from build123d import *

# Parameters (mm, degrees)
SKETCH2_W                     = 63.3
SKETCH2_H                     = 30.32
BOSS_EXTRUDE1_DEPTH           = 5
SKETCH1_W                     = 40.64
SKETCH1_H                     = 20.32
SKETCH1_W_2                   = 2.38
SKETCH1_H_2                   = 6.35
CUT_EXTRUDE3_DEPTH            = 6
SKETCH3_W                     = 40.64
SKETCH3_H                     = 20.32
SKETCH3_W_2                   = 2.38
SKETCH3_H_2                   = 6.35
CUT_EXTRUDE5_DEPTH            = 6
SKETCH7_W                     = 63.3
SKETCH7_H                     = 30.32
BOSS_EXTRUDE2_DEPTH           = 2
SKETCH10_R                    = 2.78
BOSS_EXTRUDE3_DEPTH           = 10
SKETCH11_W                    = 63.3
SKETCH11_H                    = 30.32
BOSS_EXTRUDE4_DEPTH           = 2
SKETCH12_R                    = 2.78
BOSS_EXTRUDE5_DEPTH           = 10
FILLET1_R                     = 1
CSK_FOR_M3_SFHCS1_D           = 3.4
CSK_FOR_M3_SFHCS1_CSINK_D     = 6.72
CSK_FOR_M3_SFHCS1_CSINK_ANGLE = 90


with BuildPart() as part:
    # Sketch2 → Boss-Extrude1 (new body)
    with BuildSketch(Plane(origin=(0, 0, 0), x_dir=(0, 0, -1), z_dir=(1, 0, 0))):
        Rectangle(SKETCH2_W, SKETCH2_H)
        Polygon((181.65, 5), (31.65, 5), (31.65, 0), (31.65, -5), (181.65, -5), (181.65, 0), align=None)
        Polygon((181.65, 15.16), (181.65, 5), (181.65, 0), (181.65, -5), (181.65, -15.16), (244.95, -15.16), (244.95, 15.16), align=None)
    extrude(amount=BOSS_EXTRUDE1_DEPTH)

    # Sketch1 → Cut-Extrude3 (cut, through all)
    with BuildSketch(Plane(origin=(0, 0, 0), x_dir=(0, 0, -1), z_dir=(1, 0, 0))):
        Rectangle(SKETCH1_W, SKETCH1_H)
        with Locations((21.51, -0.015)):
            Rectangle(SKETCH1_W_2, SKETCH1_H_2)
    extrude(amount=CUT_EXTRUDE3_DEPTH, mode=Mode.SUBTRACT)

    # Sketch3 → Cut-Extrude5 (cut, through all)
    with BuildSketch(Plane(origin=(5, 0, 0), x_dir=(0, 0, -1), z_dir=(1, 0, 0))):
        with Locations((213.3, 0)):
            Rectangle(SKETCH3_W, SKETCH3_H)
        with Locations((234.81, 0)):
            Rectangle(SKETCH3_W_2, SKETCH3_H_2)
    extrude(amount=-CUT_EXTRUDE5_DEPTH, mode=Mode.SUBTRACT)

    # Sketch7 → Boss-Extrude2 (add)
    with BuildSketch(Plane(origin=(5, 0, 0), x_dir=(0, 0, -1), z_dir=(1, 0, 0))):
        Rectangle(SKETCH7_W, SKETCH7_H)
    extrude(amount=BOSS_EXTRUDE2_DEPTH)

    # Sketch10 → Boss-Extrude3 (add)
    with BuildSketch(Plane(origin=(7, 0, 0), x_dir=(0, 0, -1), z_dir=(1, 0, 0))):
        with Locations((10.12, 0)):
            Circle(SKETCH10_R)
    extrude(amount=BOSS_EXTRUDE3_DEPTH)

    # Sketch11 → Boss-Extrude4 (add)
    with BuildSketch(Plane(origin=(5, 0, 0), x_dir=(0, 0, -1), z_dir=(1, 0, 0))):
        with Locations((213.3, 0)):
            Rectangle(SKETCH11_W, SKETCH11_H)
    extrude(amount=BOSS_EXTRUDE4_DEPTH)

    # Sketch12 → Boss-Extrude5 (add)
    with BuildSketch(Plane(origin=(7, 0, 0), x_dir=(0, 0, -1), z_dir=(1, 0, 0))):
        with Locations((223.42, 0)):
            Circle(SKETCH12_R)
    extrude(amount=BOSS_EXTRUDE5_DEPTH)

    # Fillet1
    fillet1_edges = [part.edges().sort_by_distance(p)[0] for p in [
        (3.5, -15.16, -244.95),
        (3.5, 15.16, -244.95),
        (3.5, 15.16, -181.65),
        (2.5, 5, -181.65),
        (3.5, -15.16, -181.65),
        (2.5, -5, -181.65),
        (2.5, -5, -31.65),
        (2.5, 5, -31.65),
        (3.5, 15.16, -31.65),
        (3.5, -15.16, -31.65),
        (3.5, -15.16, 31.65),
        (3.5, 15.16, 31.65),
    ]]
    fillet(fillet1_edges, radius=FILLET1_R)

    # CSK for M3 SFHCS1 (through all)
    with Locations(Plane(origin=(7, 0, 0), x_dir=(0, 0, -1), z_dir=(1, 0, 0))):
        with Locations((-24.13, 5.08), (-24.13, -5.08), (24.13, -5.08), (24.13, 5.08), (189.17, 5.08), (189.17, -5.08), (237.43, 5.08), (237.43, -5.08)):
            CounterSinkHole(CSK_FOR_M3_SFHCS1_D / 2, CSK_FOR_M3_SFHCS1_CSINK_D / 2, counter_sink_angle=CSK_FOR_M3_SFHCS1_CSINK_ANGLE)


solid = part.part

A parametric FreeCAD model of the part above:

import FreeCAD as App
import Part
import Sketcher


def edges_at(feature, points):
    """Names of the edges that pass closest to the given points."""
    edges = feature.Shape.Edges
    near = lambda p: min(range(len(edges)), key=lambda i: edges[i].distToShape(Part.Vertex(*p))[0])
    return sorted({f"Edge{near(p) + 1}" for p in points})

doc = App.newDocument("Part")
body = doc.addObject("PartDesign::Body", "Body")

# Sketch on YZ plane
sketch1 = doc.addObject("Sketcher::SketchObject", "Sketch")
body.addObject(sketch1)
sketch1.AttachmentSupport = (doc.YZ_Plane, [""])
sketch1.MapMode = "FlatFace"
sketch1.addGeometry(Part.LineSegment(App.Vector(15, 32, 0), App.Vector(-15, 32, 0)), False)
sketch1.addGeometry(Part.LineSegment(App.Vector(-15, 32, 0), App.Vector(-15, -32, 0)), False)
sketch1.addGeometry(Part.LineSegment(App.Vector(-15, -32, 0), App.Vector(-5, -32, 0)), False)
sketch1.addGeometry(Part.LineSegment(App.Vector(-5, -32, 0), App.Vector(-5, -182, 0)), False)
sketch1.addGeometry(Part.LineSegment(App.Vector(-5, -182, 0), App.Vector(-15, -182, 0)), False)
sketch1.addGeometry(Part.LineSegment(App.Vector(-15, -182, 0), App.Vector(-15, -245, 0)), False)
sketch1.addGeometry(Part.LineSegment(App.Vector(-15, -245, 0), App.Vector(15, -245, 0)), False)
sketch1.addGeometry(Part.LineSegment(App.Vector(15, -245, 0), App.Vector(15, -182, 0)), False)
sketch1.addGeometry(Part.LineSegment(App.Vector(15, -182, 0), App.Vector(5, -182, 0)), False)
sketch1.addGeometry(Part.LineSegment(App.Vector(5, -182, 0), App.Vector(5, -32, 0)), False)
sketch1.addGeometry(Part.LineSegment(App.Vector(5, -32, 0), App.Vector(15, -32, 0)), False)
sketch1.addGeometry(Part.LineSegment(App.Vector(15, -32, 0), App.Vector(15, 32, 0)), False)
sketch1.addConstraint(Sketcher.Constraint("Coincident", 0, 2, 1, 1))
sketch1.addConstraint(Sketcher.Constraint("Coincident", 1, 2, 2, 1))
sketch1.addConstraint(Sketcher.Constraint("Coincident", 2, 2, 3, 1))
sketch1.addConstraint(Sketcher.Constraint("Coincident", 3, 2, 4, 1))
sketch1.addConstraint(Sketcher.Constraint("Coincident", 4, 2, 5, 1))
sketch1.addConstraint(Sketcher.Constraint("Coincident", 5, 2, 6, 1))
sketch1.addConstraint(Sketcher.Constraint("Coincident", 6, 2, 7, 1))
sketch1.addConstraint(Sketcher.Constraint("Coincident", 7, 2, 8, 1))
sketch1.addConstraint(Sketcher.Constraint("Coincident", 8, 2, 9, 1))
sketch1.addConstraint(Sketcher.Constraint("Coincident", 9, 2, 10, 1))
sketch1.addConstraint(Sketcher.Constraint("Coincident", 10, 2, 11, 1))
sketch1.addConstraint(Sketcher.Constraint("Coincident", 11, 2, 0, 1))
sketch1.addConstraint(Sketcher.Constraint("Horizontal", 0))
sketch1.addConstraint(Sketcher.Constraint("Vertical", 1))
sketch1.addConstraint(Sketcher.Constraint("Horizontal", 2))
sketch1.addConstraint(Sketcher.Constraint("Vertical", 3))
sketch1.addConstraint(Sketcher.Constraint("Horizontal", 4))
sketch1.addConstraint(Sketcher.Constraint("Vertical", 5))
sketch1.addConstraint(Sketcher.Constraint("Horizontal", 6))
sketch1.addConstraint(Sketcher.Constraint("Vertical", 7))
sketch1.addConstraint(Sketcher.Constraint("Horizontal", 8))
sketch1.addConstraint(Sketcher.Constraint("Vertical", 9))
sketch1.addConstraint(Sketcher.Constraint("Horizontal", 10))
sketch1.addConstraint(Sketcher.Constraint("Vertical", 11))
sketch1.addConstraint(Sketcher.Constraint("Symmetric", 0, 2, 10, 2, -1, 1))
sketch1.addConstraint(Sketcher.Constraint("Symmetric", 4, 2, 7, 2, -2))
sketch1.addConstraint(Sketcher.Constraint("Symmetric", 2, 2, 9, 2, -2))
sketch1.addConstraint(Sketcher.Constraint("Vertical", 1, 2, 4, 2))
sketch1.addConstraint(Sketcher.Constraint("Equal", 1, 5))
sketch1.addConstraint(Sketcher.Constraint("DistanceY", 3, 2, 3, 1, 150.0))
sketch1.addConstraint(Sketcher.Constraint("DistanceY", 1, 2, 1, 1, 63.3))
sketch1.addConstraint(Sketcher.Constraint("DistanceX", 2, 2, -1, 1, 5.0))
sketch1.addConstraint(Sketcher.Constraint("DistanceX", 0, 2, 0, 1, 30.32))
pad1 = doc.addObject("PartDesign::Pad", "Pad")
body.addObject(pad1)
pad1.Profile = sketch1
pad1.Length = 5

# Sketch on YZ plane
sketch2 = doc.addObject("Sketcher::SketchObject", "Sketch001")
body.addObject(sketch2)
sketch2.AttachmentSupport = (doc.YZ_Plane, [""])
sketch2.MapMode = "FlatFace"
sketch2.addGeometry(Part.LineSegment(App.Vector(10.2, 20.3, 0), App.Vector(-10.2, 20.3, 0)), False)
sketch2.addGeometry(Part.LineSegment(App.Vector(-10.2, 20.3, 0), App.Vector(-10.2, -20.3, 0)), False)
sketch2.addGeometry(Part.LineSegment(App.Vector(-10.2, -20.3, 0), App.Vector(-3.2, -20.3, 0)), False)
sketch2.addGeometry(Part.LineSegment(App.Vector(-3.2, -20.3, 0), App.Vector(-3.2, -22.7, 0)), False)
sketch2.addGeometry(Part.LineSegment(App.Vector(-3.2, -22.7, 0), App.Vector(3.2, -22.7, 0)), False)
sketch2.addGeometry(Part.LineSegment(App.Vector(3.2, -22.7, 0), App.Vector(3.2, -20.3, 0)), False)
sketch2.addGeometry(Part.LineSegment(App.Vector(3.2, -20.3, 0), App.Vector(10.2, -20.3, 0)), False)
sketch2.addGeometry(Part.LineSegment(App.Vector(10.2, -20.3, 0), App.Vector(10.2, 20.3, 0)), False)
sketch2.addConstraint(Sketcher.Constraint("Coincident", 0, 2, 1, 1))
sketch2.addConstraint(Sketcher.Constraint("Coincident", 1, 2, 2, 1))
sketch2.addConstraint(Sketcher.Constraint("Coincident", 2, 2, 3, 1))
sketch2.addConstraint(Sketcher.Constraint("Coincident", 3, 2, 4, 1))
sketch2.addConstraint(Sketcher.Constraint("Coincident", 4, 2, 5, 1))
sketch2.addConstraint(Sketcher.Constraint("Coincident", 5, 2, 6, 1))
sketch2.addConstraint(Sketcher.Constraint("Coincident", 6, 2, 7, 1))
sketch2.addConstraint(Sketcher.Constraint("Coincident", 7, 2, 0, 1))
sketch2.addConstraint(Sketcher.Constraint("Horizontal", 0))
sketch2.addConstraint(Sketcher.Constraint("Vertical", 1))
sketch2.addConstraint(Sketcher.Constraint("Horizontal", 2))
sketch2.addConstraint(Sketcher.Constraint("Vertical", 3))
sketch2.addConstraint(Sketcher.Constraint("Horizontal", 4))
sketch2.addConstraint(Sketcher.Constraint("Vertical", 5))
sketch2.addConstraint(Sketcher.Constraint("Horizontal", 6))
sketch2.addConstraint(Sketcher.Constraint("Vertical", 7))
sketch2.addConstraint(Sketcher.Constraint("Symmetric", 0, 2, 6, 2, -1, 1))
sketch2.addConstraint(Sketcher.Constraint("Horizontal", 2, 2, 5, 2))
sketch2.addConstraint(Sketcher.Constraint("DistanceX", 6, 1, 6, 2, 7.0))
sketch2.addConstraint(Sketcher.Constraint("DistanceX", 0, 2, 0, 1, 20.32))
sketch2.addConstraint(Sketcher.Constraint("DistanceX", 2, 1, 2, 2, 6.97))
sketch2.addConstraint(Sketcher.Constraint("DistanceY", 1, 2, 1, 1, 40.64))
sketch2.addConstraint(Sketcher.Constraint("DistanceY", 3, 2, 3, 1, 2.38))
pocket1 = doc.addObject("PartDesign::Pocket", "Pocket")
body.addObject(pocket1)
pocket1.Profile = sketch2
pocket1.Type = "ThroughAll"
pocket1.Reversed = True

# Sketch on YZ plane
sketch3 = doc.addObject("Sketcher::SketchObject", "Sketch002")
body.addObject(sketch3)
sketch3.AttachmentSupport = (doc.YZ_Plane, [""])
sketch3.MapMode = "FlatFace"
sketch3.AttachmentOffset = App.Placement(App.Vector(0, 0, 5), App.Rotation())
sketch3.addGeometry(Part.LineSegment(App.Vector(10.2, -193, 0), App.Vector(-10.2, -193, 0)), False)
sketch3.addGeometry(Part.LineSegment(App.Vector(-10.2, -193, 0), App.Vector(-10.2, -233.6, 0)), False)
sketch3.addGeometry(Part.LineSegment(App.Vector(-10.2, -233.6, 0), App.Vector(-3.2, -233.6, 0)), False)
sketch3.addGeometry(Part.LineSegment(App.Vector(-3.2, -233.6, 0), App.Vector(-3.2, -236, 0)), False)
sketch3.addGeometry(Part.LineSegment(App.Vector(-3.2, -236, 0), App.Vector(3.2, -236, 0)), False)
sketch3.addGeometry(Part.LineSegment(App.Vector(3.2, -236, 0), App.Vector(3.2, -233.6, 0)), False)
sketch3.addGeometry(Part.LineSegment(App.Vector(3.2, -233.6, 0), App.Vector(10.2, -233.6, 0)), False)
sketch3.addGeometry(Part.LineSegment(App.Vector(10.2, -233.6, 0), App.Vector(10.2, -193, 0)), False)
sketch3.addConstraint(Sketcher.Constraint("Coincident", 0, 2, 1, 1))
sketch3.addConstraint(Sketcher.Constraint("Coincident", 1, 2, 2, 1))
sketch3.addConstraint(Sketcher.Constraint("Coincident", 2, 2, 3, 1))
sketch3.addConstraint(Sketcher.Constraint("Coincident", 3, 2, 4, 1))
sketch3.addConstraint(Sketcher.Constraint("Coincident", 4, 2, 5, 1))
sketch3.addConstraint(Sketcher.Constraint("Coincident", 5, 2, 6, 1))
sketch3.addConstraint(Sketcher.Constraint("Coincident", 6, 2, 7, 1))
sketch3.addConstraint(Sketcher.Constraint("Coincident", 7, 2, 0, 1))
sketch3.addConstraint(Sketcher.Constraint("Horizontal", 0))
sketch3.addConstraint(Sketcher.Constraint("Vertical", 1))
sketch3.addConstraint(Sketcher.Constraint("Horizontal", 2))
sketch3.addConstraint(Sketcher.Constraint("Vertical", 3))
sketch3.addConstraint(Sketcher.Constraint("Horizontal", 4))
sketch3.addConstraint(Sketcher.Constraint("Vertical", 5))
sketch3.addConstraint(Sketcher.Constraint("Horizontal", 6))
sketch3.addConstraint(Sketcher.Constraint("Vertical", 7))
sketch3.addConstraint(Sketcher.Constraint("Symmetric", 2, 2, 5, 2, -2))
sketch3.addConstraint(Sketcher.Constraint("Equal", 2, 6))
sketch3.addConstraint(Sketcher.Constraint("DistanceY", 3, 2, -1, 1, 236.0))
sketch3.addConstraint(Sketcher.Constraint("DistanceX", 0, 2, 0, 1, 20.32))
sketch3.addConstraint(Sketcher.Constraint("DistanceX", 4, 1, 4, 2, 6.35))
sketch3.addConstraint(Sketcher.Constraint("DistanceY", 1, 2, 1, 1, 40.64))
sketch3.addConstraint(Sketcher.Constraint("DistanceY", 3, 2, 3, 1, 2.38))
pocket2 = doc.addObject("PartDesign::Pocket", "Pocket001")
body.addObject(pocket2)
pocket2.Profile = sketch3
pocket2.Type = "ThroughAll"

# Sketch on YZ plane
sketch4 = doc.addObject("Sketcher::SketchObject", "Sketch003")
body.addObject(sketch4)
sketch4.AttachmentSupport = (doc.YZ_Plane, [""])
sketch4.MapMode = "FlatFace"
sketch4.AttachmentOffset = App.Placement(App.Vector(0, 0, 5), App.Rotation())
sketch4.addGeometry(Part.LineSegment(App.Vector(15, 32, 0), App.Vector(-15, 32, 0)), False)
sketch4.addGeometry(Part.LineSegment(App.Vector(-15, 32, 0), App.Vector(-15, -32, 0)), False)
sketch4.addGeometry(Part.LineSegment(App.Vector(-15, -32, 0), App.Vector(15, -32, 0)), False)
sketch4.addGeometry(Part.LineSegment(App.Vector(15, -32, 0), App.Vector(15, 32, 0)), False)
sketch4.addConstraint(Sketcher.Constraint("Coincident", 0, 2, 1, 1))
sketch4.addConstraint(Sketcher.Constraint("Coincident", 1, 2, 2, 1))
sketch4.addConstraint(Sketcher.Constraint("Coincident", 2, 2, 3, 1))
sketch4.addConstraint(Sketcher.Constraint("Coincident", 3, 2, 0, 1))
sketch4.addConstraint(Sketcher.Constraint("Horizontal", 0))
sketch4.addConstraint(Sketcher.Constraint("Vertical", 1))
sketch4.addConstraint(Sketcher.Constraint("Horizontal", 2))
sketch4.addConstraint(Sketcher.Constraint("Vertical", 3))
sketch4.addConstraint(Sketcher.Constraint("Symmetric", 0, 2, 2, 2, -1, 1))
sketch4.addConstraint(Sketcher.Constraint("DistanceY", 1, 2, 1, 1, 63.3))
sketch4.addConstraint(Sketcher.Constraint("DistanceX", 0, 2, 0, 1, 30.32))
pad2 = doc.addObject("PartDesign::Pad", "Pad001")
body.addObject(pad2)
pad2.Profile = sketch4
pad2.Length = 2

# Sketch on YZ plane
sketch5 = doc.addObject("Sketcher::SketchObject", "Sketch004")
body.addObject(sketch5)
sketch5.AttachmentSupport = (doc.YZ_Plane, [""])
sketch5.MapMode = "FlatFace"
sketch5.AttachmentOffset = App.Placement(App.Vector(0, 0, 7), App.Rotation())
sketch5.addGeometry(Part.Circle(App.Vector(0, -10.1, 0), App.Vector(0, 0, 1), 2.8), False)
sketch5.addConstraint(Sketcher.Constraint("PointOnObject", 0, 3, -2))
sketch5.addConstraint(Sketcher.Constraint("Diameter", 0, 5.56))
sketch5.addConstraint(Sketcher.Constraint("DistanceY", 0, 3, -1, 1, 10.12))
pad3 = doc.addObject("PartDesign::Pad", "Pad002")
body.addObject(pad3)
pad3.Profile = sketch5
pad3.Length = 10

# Sketch on YZ plane
sketch6 = doc.addObject("Sketcher::SketchObject", "Sketch005")
body.addObject(sketch6)
sketch6.AttachmentSupport = (doc.YZ_Plane, [""])
sketch6.MapMode = "FlatFace"
sketch6.AttachmentOffset = App.Placement(App.Vector(0, 0, 5), App.Rotation())
sketch6.addGeometry(Part.LineSegment(App.Vector(15, -182, 0), App.Vector(-15, -182, 0)), False)
sketch6.addGeometry(Part.LineSegment(App.Vector(-15, -182, 0), App.Vector(-15, -245, 0)), False)
sketch6.addGeometry(Part.LineSegment(App.Vector(-15, -245, 0), App.Vector(15, -245, 0)), False)
sketch6.addGeometry(Part.LineSegment(App.Vector(15, -245, 0), App.Vector(15, -182, 0)), False)
sketch6.addConstraint(Sketcher.Constraint("Coincident", 0, 2, 1, 1))
sketch6.addConstraint(Sketcher.Constraint("Coincident", 1, 2, 2, 1))
sketch6.addConstraint(Sketcher.Constraint("Coincident", 2, 2, 3, 1))
sketch6.addConstraint(Sketcher.Constraint("Coincident", 3, 2, 0, 1))
sketch6.addConstraint(Sketcher.Constraint("Horizontal", 0))
sketch6.addConstraint(Sketcher.Constraint("Vertical", 1))
sketch6.addConstraint(Sketcher.Constraint("Horizontal", 2))
sketch6.addConstraint(Sketcher.Constraint("Vertical", 3))
sketch6.addConstraint(Sketcher.Constraint("DistanceY", 1, 2, 1, 1, 63.3))
sketch6.addConstraint(Sketcher.Constraint("DistanceX", 0, 2, 0, 1, 30.32))
sketch6.addConstraint(Sketcher.Constraint("DistanceX", 0, 2, -1, 1, 15.16))
sketch6.addConstraint(Sketcher.Constraint("DistanceY", 0, 2, -1, 1, 181.65))
pad4 = doc.addObject("PartDesign::Pad", "Pad003")
body.addObject(pad4)
pad4.Profile = sketch6
pad4.Length = 2

# Sketch on YZ plane
sketch7 = doc.addObject("Sketcher::SketchObject", "Sketch006")
body.addObject(sketch7)
sketch7.AttachmentSupport = (doc.YZ_Plane, [""])
sketch7.MapMode = "FlatFace"
sketch7.AttachmentOffset = App.Placement(App.Vector(0, 0, 7), App.Rotation())
sketch7.addGeometry(Part.Circle(App.Vector(0, -223.4, 0), App.Vector(0, 0, 1), 2.8), False)
sketch7.addConstraint(Sketcher.Constraint("PointOnObject", 0, 3, -2))
sketch7.addConstraint(Sketcher.Constraint("Diameter", 0, 5.56))
sketch7.addConstraint(Sketcher.Constraint("DistanceY", 0, 3, -1, 1, 223.42))
pad5 = doc.addObject("PartDesign::Pad", "Pad004")
body.addObject(pad5)
pad5.Profile = sketch7
pad5.Length = 10
doc.recompute()

fillet = doc.addObject("PartDesign::Fillet", "Fillet")
body.addObject(fillet)
fillet.Base = (pad5, edges_at(pad5, [
    (3.5, -15.16, -244.95),
    (3.5, 15.16, -244.95),
    (3.5, 15.16, -181.65),
    (2.5, 5, -181.65),
    (3.5, -15.16, -181.65),
    (2.5, -5, -181.65),
    (2.5, -5, -31.65),
    (2.5, 5, -31.65),
    (3.5, 15.16, -31.65),
    (3.5, -15.16, -31.65),
    (3.5, -15.16, 31.65),
    (3.5, 15.16, 31.65),
]))
fillet.Radius = 1

# Sketch on YZ plane
sketch8 = doc.addObject("Sketcher::SketchObject", "Sketch007")
body.addObject(sketch8)
sketch8.AttachmentSupport = (doc.YZ_Plane, [""])
sketch8.MapMode = "FlatFace"
sketch8.AttachmentOffset = App.Placement(App.Vector(0, 0, 7), App.Rotation())
sketch8.addGeometry(Part.Circle(App.Vector(5.1, 24.1, 0), App.Vector(0, 0, 1), 1.7), False)
sketch8.addGeometry(Part.Circle(App.Vector(-5.1, 24.1, 0), App.Vector(0, 0, 1), 1.7), False)
sketch8.addGeometry(Part.Circle(App.Vector(-5.1, -24.1, 0), App.Vector(0, 0, 1), 1.7), False)
sketch8.addGeometry(Part.Circle(App.Vector(5.1, -24.1, 0), App.Vector(0, 0, 1), 1.7), False)
sketch8.addGeometry(Part.Circle(App.Vector(5.1, -189.2, 0), App.Vector(0, 0, 1), 1.7), False)
sketch8.addGeometry(Part.Circle(App.Vector(-5.1, -189.2, 0), App.Vector(0, 0, 1), 1.7), False)
sketch8.addGeometry(Part.Circle(App.Vector(5.1, -237.4, 0), App.Vector(0, 0, 1), 1.7), False)
sketch8.addGeometry(Part.Circle(App.Vector(-5.1, -237.4, 0), App.Vector(0, 0, 1), 1.7), False)
sketch8.addConstraint(Sketcher.Constraint("Equal", 0, 1))
sketch8.addConstraint(Sketcher.Constraint("Equal", 1, 2))
sketch8.addConstraint(Sketcher.Constraint("Equal", 2, 3))
sketch8.addConstraint(Sketcher.Constraint("Equal", 3, 4))
sketch8.addConstraint(Sketcher.Constraint("Equal", 4, 5))
sketch8.addConstraint(Sketcher.Constraint("Equal", 5, 6))
sketch8.addConstraint(Sketcher.Constraint("Equal", 6, 7))
sketch8.addConstraint(Sketcher.Constraint("Symmetric", 0, 3, 2, 3, -1, 1))
sketch8.addConstraint(Sketcher.Constraint("Symmetric", 1, 3, 3, 3, -1, 1))
sketch8.addConstraint(Sketcher.Constraint("Symmetric", 0, 3, 1, 3, -2))
sketch8.addConstraint(Sketcher.Constraint("Symmetric", 4, 3, 5, 3, -2))
sketch8.addConstraint(Sketcher.Constraint("Symmetric", 6, 3, 7, 3, -2))
sketch8.addConstraint(Sketcher.Constraint("Vertical", 3, 3, 4, 3))
sketch8.addConstraint(Sketcher.Constraint("Vertical", 4, 3, 6, 3))
sketch8.addConstraint(Sketcher.Constraint("Diameter", 0, 3.4))
sketch8.addConstraint(Sketcher.Constraint("DistanceY", 4, 3, 0, 3, 213.3))
sketch8.addConstraint(Sketcher.Constraint("DistanceY", 6, 3, 3, 3, 213.3))
sketch8.addConstraint(Sketcher.Constraint("DistanceX", -1, 1, 0, 3, 5.08))
sketch8.addConstraint(Sketcher.Constraint("DistanceY", -1, 1, 0, 3, 24.13))
doc.recompute()
hole = doc.addObject("PartDesign::Hole", "Hole")
body.addObject(hole)
hole.Profile = sketch8
hole.ThreadType = "None"
hole.Diameter = 3.4
hole.DepthType = "ThroughAll"
hole.HoleCutType = "Countersink"
hole.HoleCutDiameter = 6.72
hole.HoleCutCountersinkAngle = 90

doc.recompute()
